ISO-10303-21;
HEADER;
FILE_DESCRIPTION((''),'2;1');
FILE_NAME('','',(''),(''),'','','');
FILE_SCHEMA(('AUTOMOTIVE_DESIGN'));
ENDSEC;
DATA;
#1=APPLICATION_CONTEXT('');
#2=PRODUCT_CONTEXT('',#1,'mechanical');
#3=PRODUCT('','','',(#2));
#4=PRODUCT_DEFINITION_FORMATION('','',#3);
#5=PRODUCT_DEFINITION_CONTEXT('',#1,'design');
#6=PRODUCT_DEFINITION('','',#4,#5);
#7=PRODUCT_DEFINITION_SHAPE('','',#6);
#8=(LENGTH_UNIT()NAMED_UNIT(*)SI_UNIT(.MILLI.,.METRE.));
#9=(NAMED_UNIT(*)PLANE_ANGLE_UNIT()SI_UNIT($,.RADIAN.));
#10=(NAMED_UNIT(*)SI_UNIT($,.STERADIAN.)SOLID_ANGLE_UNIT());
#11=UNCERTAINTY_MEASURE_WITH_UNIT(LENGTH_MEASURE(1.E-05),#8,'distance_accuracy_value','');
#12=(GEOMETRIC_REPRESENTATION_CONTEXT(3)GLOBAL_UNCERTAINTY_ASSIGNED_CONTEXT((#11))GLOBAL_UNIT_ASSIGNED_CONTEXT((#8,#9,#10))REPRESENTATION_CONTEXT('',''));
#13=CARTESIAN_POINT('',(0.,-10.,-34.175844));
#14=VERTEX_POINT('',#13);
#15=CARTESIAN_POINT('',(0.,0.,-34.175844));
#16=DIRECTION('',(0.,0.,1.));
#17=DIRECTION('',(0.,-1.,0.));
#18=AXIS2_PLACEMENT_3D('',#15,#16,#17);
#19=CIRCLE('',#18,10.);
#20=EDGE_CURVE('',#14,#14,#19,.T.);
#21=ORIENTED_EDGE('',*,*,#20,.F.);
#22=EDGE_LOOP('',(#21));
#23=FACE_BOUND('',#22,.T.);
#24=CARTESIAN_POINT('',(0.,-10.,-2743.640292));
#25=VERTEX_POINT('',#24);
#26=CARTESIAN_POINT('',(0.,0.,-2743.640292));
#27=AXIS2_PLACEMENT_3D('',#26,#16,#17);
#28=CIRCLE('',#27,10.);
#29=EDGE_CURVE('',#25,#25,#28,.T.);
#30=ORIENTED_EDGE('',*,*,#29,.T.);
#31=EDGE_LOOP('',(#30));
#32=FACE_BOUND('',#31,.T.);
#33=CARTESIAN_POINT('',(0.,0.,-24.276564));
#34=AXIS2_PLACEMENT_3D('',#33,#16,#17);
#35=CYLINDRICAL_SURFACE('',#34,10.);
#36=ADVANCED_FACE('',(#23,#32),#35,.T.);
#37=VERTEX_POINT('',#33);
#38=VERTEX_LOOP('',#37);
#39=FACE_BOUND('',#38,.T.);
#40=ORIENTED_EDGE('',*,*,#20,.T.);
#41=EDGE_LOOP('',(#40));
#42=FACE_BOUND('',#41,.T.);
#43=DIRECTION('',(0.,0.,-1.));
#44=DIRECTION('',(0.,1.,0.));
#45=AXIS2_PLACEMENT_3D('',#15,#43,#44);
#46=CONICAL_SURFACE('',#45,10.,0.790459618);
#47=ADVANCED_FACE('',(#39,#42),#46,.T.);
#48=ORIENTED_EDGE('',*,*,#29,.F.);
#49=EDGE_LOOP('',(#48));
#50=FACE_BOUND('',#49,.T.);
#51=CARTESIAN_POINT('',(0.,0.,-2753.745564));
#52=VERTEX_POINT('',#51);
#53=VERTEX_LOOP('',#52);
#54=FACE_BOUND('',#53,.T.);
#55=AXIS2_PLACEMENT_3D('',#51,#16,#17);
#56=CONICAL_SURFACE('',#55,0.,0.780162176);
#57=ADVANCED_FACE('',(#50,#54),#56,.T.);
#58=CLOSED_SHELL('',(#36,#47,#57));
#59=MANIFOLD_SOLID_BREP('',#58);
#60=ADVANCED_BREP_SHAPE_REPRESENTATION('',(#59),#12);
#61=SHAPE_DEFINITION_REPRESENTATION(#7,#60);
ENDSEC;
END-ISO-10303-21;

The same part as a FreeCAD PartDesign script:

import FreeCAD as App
import Part
import Sketcher

V = App.Vector
Q = App.Units.Quantity


def add_polygon(sketch, points):
    """Adds a closed chain of lines whose ends are joined by coincident constraints."""
    first, n = sketch.GeometryCount, len(points)
    for a, b in zip(points, points[1:] + points[:1]):
        sketch.addGeometry(Part.LineSegment(App.Vector(*a, 0), App.Vector(*b, 0)), False)
    for i in range(n):
        sketch.addConstraint(Sketcher.Constraint("Coincident", first + i, 2, first + (i + 1) % n, 1))

doc = App.newDocument("Part")
params = doc.addObject("Spreadsheet::Sheet", "Params")
for row, (alias, value) in enumerate([
    ("revolution_angle", "360 deg"),
], start=1):
    params.set(f"A{row}", alias)
    params.set(f"B{row}", "=" + value)
    params.setAlias(f"B{row}", alias)

body = doc.addObject("PartDesign::Body", "Body")

sketch1 = body.newObject("Sketcher::SketchObject", "Sketch")
sketch1.AttachmentSupport = (doc.getObject("YZ_Plane"), [""])
sketch1.MapMode = "FlatFace"
add_polygon(sketch1, [(10, -34.175844), (0, -24.276564), (0, -2753.745564), (10, -2743.640292)])
sketch1.addConstraint([
    Sketcher.Constraint("Vertical", 1),
    Sketcher.Constraint("Vertical", 3),
    Sketcher.Constraint("PointOnObject", 0, 2, -2),
    Sketcher.Constraint("DistanceX", -1, 1, 2, 2, 10.0),
    Sketcher.Constraint("Angle", 2, Q("45.3 deg")),
    Sketcher.Constraint("Angle", 0, Q("135.29 deg")),
    Sketcher.Constraint("DistanceY", 1, 2, 1, 1, 2729.469),
    Sketcher.Constraint("DistanceY", 0, 2, -1, 1, 24.276564),
])
revolution = body.newObject("PartDesign::Revolution", "Revolution")
revolution.Profile = sketch1
revolution.ReferenceAxis = (sketch1, ["V_Axis"])
revolution.setExpression("Angle", "Params.revolution_angle")

doc.recompute()
